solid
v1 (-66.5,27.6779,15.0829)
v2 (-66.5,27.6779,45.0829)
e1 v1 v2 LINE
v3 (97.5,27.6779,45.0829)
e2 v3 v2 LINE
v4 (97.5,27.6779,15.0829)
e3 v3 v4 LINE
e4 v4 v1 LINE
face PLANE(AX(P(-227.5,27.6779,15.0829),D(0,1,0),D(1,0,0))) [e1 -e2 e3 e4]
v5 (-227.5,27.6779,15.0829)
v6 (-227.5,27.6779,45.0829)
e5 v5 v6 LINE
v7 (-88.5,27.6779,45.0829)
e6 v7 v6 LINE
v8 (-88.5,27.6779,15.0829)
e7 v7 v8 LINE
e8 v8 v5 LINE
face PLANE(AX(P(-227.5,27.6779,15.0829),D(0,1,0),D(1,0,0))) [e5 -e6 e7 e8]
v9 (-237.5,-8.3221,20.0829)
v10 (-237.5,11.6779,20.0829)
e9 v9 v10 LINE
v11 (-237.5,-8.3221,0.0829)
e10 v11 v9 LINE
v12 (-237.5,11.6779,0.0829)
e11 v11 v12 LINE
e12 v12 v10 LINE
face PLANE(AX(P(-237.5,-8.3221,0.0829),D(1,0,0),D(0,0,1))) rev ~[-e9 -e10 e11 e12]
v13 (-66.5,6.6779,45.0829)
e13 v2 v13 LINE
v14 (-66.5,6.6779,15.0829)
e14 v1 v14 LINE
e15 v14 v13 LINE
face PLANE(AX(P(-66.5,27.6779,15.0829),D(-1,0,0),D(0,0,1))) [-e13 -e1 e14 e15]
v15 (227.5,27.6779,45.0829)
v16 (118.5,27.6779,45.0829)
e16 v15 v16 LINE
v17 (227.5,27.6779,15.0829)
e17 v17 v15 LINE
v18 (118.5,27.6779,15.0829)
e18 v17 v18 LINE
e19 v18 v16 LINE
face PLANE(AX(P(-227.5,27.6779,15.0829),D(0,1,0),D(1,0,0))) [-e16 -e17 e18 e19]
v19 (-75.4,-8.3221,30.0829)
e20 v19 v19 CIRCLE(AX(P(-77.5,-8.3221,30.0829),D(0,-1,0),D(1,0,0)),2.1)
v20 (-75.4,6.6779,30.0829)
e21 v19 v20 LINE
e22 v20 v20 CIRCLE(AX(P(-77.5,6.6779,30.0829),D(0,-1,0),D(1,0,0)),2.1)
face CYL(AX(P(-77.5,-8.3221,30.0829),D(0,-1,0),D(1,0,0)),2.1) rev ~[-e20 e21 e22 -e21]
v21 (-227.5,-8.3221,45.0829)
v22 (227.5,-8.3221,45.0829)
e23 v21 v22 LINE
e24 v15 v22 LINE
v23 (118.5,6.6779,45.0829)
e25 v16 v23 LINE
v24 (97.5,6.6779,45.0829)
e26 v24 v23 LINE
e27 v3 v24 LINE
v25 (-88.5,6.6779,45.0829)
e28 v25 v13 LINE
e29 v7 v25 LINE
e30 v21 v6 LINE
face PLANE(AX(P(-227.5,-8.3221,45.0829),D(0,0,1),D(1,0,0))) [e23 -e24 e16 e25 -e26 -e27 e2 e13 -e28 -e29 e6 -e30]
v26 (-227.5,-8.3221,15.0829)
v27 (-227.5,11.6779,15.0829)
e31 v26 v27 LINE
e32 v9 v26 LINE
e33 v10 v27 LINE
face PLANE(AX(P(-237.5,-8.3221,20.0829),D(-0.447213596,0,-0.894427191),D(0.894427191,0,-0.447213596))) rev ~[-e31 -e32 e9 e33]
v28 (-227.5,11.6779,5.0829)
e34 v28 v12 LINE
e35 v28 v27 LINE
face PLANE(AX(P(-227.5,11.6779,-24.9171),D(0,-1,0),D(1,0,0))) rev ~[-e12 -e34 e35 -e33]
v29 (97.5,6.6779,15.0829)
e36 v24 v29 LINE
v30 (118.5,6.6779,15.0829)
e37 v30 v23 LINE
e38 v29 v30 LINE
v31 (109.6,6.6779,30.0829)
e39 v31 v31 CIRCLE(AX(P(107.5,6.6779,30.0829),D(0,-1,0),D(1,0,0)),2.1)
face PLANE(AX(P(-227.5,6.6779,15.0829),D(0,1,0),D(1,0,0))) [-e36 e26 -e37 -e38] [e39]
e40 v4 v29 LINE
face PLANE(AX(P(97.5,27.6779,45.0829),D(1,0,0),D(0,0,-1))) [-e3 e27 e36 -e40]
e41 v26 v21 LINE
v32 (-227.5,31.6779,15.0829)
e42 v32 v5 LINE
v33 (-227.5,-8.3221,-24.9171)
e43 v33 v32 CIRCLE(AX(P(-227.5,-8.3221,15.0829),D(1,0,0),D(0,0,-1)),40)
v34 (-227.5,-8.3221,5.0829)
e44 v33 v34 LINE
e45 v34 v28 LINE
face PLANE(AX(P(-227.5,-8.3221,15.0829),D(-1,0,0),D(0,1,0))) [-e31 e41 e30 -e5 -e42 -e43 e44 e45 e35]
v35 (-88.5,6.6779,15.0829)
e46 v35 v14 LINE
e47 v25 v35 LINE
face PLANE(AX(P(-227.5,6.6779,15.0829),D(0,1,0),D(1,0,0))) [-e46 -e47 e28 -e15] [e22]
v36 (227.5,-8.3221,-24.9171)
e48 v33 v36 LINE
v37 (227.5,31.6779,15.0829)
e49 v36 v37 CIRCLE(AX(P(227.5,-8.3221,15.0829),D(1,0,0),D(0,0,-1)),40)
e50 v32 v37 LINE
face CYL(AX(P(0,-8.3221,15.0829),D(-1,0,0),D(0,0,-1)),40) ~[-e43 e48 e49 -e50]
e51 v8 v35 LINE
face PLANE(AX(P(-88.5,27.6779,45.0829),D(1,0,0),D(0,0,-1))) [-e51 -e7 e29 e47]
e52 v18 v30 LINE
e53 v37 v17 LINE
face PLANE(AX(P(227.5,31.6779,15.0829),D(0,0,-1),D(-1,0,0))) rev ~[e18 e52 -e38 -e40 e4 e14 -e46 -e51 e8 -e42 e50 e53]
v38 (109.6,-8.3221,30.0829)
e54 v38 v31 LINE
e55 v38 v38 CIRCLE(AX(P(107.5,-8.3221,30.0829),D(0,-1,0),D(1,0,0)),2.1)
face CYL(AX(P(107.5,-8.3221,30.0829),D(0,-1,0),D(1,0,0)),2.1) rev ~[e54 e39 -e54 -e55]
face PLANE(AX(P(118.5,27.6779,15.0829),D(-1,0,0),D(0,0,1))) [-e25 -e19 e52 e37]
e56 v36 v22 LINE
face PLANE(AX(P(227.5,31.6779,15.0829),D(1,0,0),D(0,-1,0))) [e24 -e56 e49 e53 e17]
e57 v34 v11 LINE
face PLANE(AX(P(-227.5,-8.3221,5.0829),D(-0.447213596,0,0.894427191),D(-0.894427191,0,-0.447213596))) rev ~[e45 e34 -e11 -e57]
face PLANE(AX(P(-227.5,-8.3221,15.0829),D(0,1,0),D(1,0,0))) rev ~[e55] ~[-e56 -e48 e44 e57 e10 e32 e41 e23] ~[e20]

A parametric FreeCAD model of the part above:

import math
import FreeCAD as App
import Part
import Sketcher

V = App.Vector


def add_polygon(sketch, points):
    """Adds a closed chain of lines whose ends are joined by coincident constraints."""
    first, n = sketch.GeometryCount, len(points)
    for a, b in zip(points, points[1:] + points[:1]):
        sketch.addGeometry(Part.LineSegment(App.Vector(*a, 0), App.Vector(*b, 0)), False)
    for i in range(n):
        sketch.addConstraint(Sketcher.Constraint("Coincident", first + i, 2, first + (i + 1) % n, 1))

doc = App.newDocument("Part")
body = doc.addObject("PartDesign::Body", "Body")

# Sketch on YZ plane
sketch1 = doc.addObject("Sketcher::SketchObject", "Sketch")
body.addObject(sketch1)
sketch1.AttachmentSupport = (doc.YZ_Plane, [""])
sketch1.MapMode = "FlatFace"
sketch1.addGeometry(Part.LineSegment(V(-8.3221, 15.0829, 0), V(-8.3221, -24.9171, 0)), False)
sketch1.addGeometry(Part.ArcOfCircle(Part.Circle(V(-8.3221, 15.0829, 0), V(0, 0, 1), 40), math.radians(-90), math.radians(0)), False)
sketch1.addGeometry(Part.LineSegment(V(31.6779, 15.0829, 0), V(-8.3221, 15.0829, 0)), False)
sketch1.addConstraint(Sketcher.Constraint("Coincident", 0, 2, 1, 1))
sketch1.addConstraint(Sketcher.Constraint("Coincident", 1, 2, 2, 1))
sketch1.addConstraint(Sketcher.Constraint("Coincident", 2, 2, 0, 1))
sketch1.addConstraint(Sketcher.Constraint("Vertical", 0))
sketch1.addConstraint(Sketcher.Constraint("Horizontal", 2))
sketch1.addConstraint(Sketcher.Constraint("Coincident", 2, 2, 1, 3))
sketch1.addConstraint(Sketcher.Constraint("Radius", 1, 40.0))
sketch1.addConstraint(Sketcher.Constraint("DistanceX", 1, 3, -1, 1, 8.322))
sketch1.addConstraint(Sketcher.Constraint("DistanceY", -1, 1, 1, 3, 15.083))
pad1 = doc.addObject("PartDesign::Pad", "Pad")
body.addObject(pad1)
pad1.Profile = sketch1
pad1.Length = 455
pad1.Midplane = True

# Sketch on XY plane
sketch2 = doc.addObject("Sketcher::SketchObject", "Sketch001")
body.addObject(sketch2)
sketch2.AttachmentSupport = (doc.XY_Plane, [""])
sketch2.MapMode = "FlatFace"
sketch2.AttachmentOffset = App.Placement(V(0, 0, 15.0829), App.Rotation())
add_polygon(sketch2, [(-227.5, 31.6779), (-227.5, -8.3221), (227.5, -8.3221), (227.5, 31.6779)])  # lines 0-3
sketch2.addConstraint(Sketcher.Constraint("Vertical", 0))
sketch2.addConstraint(Sketcher.Constraint("Horizontal", 1))
sketch2.addConstraint(Sketcher.Constraint("Vertical", 2))
sketch2.addConstraint(Sketcher.Constraint("Horizontal", 3))
sketch2.addConstraint(Sketcher.Constraint("DistanceX", 1, 1, 1, 2, 455.0))
sketch2.addConstraint(Sketcher.Constraint("DistanceY", 0, 2, 0, 1, 40.0))
sketch2.addConstraint(Sketcher.Constraint("DistanceX", 0, 2, -1, 1, 227.5))
sketch2.addConstraint(Sketcher.Constraint("DistanceY", 0, 2, -1, 1, 8.322))
pad2 = doc.addObject("PartDesign::Pad", "Pad001")
body.addObject(pad2)
pad2.Profile = sketch2
pad2.Length = 30

# Sketch on XZ plane
sketch3 = doc.addObject("Sketcher::SketchObject", "Sketch002")
body.addObject(sketch3)
sketch3.AttachmentSupport = (doc.XZ_Plane, [""])
sketch3.MapMode = "FlatFace"
sketch3.AttachmentOffset = App.Placement(V(0, 0, -31.6779), App.Rotation())
add_polygon(sketch3, [(227.5, 45.0829), (227.5, 15.0829), (-227.5, 15.0829), (-227.5, 45.0829)])  # lines 0-3
sketch3.addConstraint(Sketcher.Constraint("Vertical", 0))
sketch3.addConstraint(Sketcher.Constraint("Horizontal", 1))
sketch3.addConstraint(Sketcher.Constraint("Vertical", 2))
sketch3.addConstraint(Sketcher.Constraint("Horizontal", 3))
sketch3.addConstraint(Sketcher.Constraint("DistanceX", 1, 2, 1, 1, 455.0))
sketch3.addConstraint(Sketcher.Constraint("DistanceY", 0, 2, 0, 1, 30.0))
sketch3.addConstraint(Sketcher.Constraint("DistanceX", -1, 1, 0, 2, 227.5))
sketch3.addConstraint(Sketcher.Constraint("DistanceY", -1, 1, 0, 2, 15.083))
pocket1 = doc.addObject("PartDesign::Pocket", "Pocket")
body.addObject(pocket1)
pocket1.Profile = sketch3
pocket1.Length = 4
pocket1.Reversed = True

# Sketch on XZ plane
sketch4 = doc.addObject("Sketcher::SketchObject", "Sketch003")
body.addObject(sketch4)
sketch4.AttachmentSupport = (doc.XZ_Plane, [""])
sketch4.MapMode = "FlatFace"
sketch4.AttachmentOffset = App.Placement(V(0, 0, 8.3221), App.Rotation())
add_polygon(sketch4, [(-227.5, 15.0829), (-237.5, 20.0829), (-237.5, 0.0829), (-227.5, 5.0829)])  # lines 0-3
sketch4.addConstraint(Sketcher.Constraint("Vertical", 1))
sketch4.addConstraint(Sketcher.Constraint("Vertical", 3))
sketch4.addConstraint(Sketcher.Constraint("Equal", 0, 2))
sketch4.addConstraint(Sketcher.Constraint("DistanceY", 1, 2, 1, 1, 20.0))
sketch4.addConstraint(Sketcher.Constraint("DistanceY", 3, 1, 3, 2, 10.0))
sketch4.addConstraint(Sketcher.Constraint("DistanceX", 1, 2, 2, 2, 10.0))
sketch4.addConstraint(Sketcher.Constraint("DistanceX", 0, 2, -1, 1, 237.5))
sketch4.addConstraint(Sketcher.Constraint("DistanceY", -1, 1, 0, 2, 20.083))
pad3 = doc.addObject("PartDesign::Pad", "Pad002")
body.addObject(pad3)
pad3.Profile = sketch4
pad3.Length = 20
pad3.Reversed = True

# Sketch on XZ plane
sketch5 = doc.addObject("Sketcher::SketchObject", "Sketch004")
body.addObject(sketch5)
sketch5.AttachmentSupport = (doc.XZ_Plane, [""])
sketch5.MapMode = "FlatFace"
sketch5.AttachmentOffset = App.Placement(V(0, 0, -27.6779), App.Rotation())
add_polygon(sketch5, [(-88.5, 15.0829), (-88.5, 45.0829), (-66.5, 45.0829), (-66.5, 15.0829)])  # lines 0-3
add_polygon(sketch5, [(97.5, 15.0829), (97.5, 45.0829), (118.5, 45.0829), (118.5, 15.0829)])  # lines 4-7
sketch5.addConstraint(Sketcher.Constraint("Vertical", 0))
sketch5.addConstraint(Sketcher.Constraint("Horizontal", 1))
sketch5.addConstraint(Sketcher.Constraint("Vertical", 2))
sketch5.addConstraint(Sketcher.Constraint("Horizontal", 3))
sketch5.addConstraint(Sketcher.Constraint("Vertical", 4))
sketch5.addConstraint(Sketcher.Constraint("Horizontal", 5))
sketch5.addConstraint(Sketcher.Constraint("Vertical", 6))
sketch5.addConstraint(Sketcher.Constraint("Horizontal", 7))
sketch5.addConstraint(Sketcher.Constraint("Horizontal", 1, 2, 4, 2))
sketch5.addConstraint(Sketcher.Constraint("Horizontal", 3, 2, 6, 2))
sketch5.addConstraint(Sketcher.Constraint("DistanceX", 1, 1, 1, 2, 22.0))
sketch5.addConstraint(Sketcher.Constraint("DistanceX", 1, 2, 5, 2, 185.0))
sketch5.addConstraint(Sketcher.Constraint("DistanceX", 5, 1, 5, 2, 21.0))
sketch5.addConstraint(Sketcher.Constraint("DistanceY", 0, 1, 0, 2, 30.0))
sketch5.addConstraint(Sketcher.Constraint("DistanceX", 0, 2, -1, 1, 88.5))
sketch5.addConstraint(Sketcher.Constraint("DistanceY", -1, 1, 0, 2, 45.083))
pocket2 = doc.addObject("PartDesign::Pocket", "Pocket001")
body.addObject(pocket2)
pocket2.Profile = sketch5
pocket2.Length = 21
pocket2.Reversed = True

# Sketch on XZ plane
sketch6 = doc.addObject("Sketcher::SketchObject", "Sketch005")
body.addObject(sketch6)
sketch6.AttachmentSupport = (doc.XZ_Plane, [""])
sketch6.MapMode = "FlatFace"
sketch6.AttachmentOffset = App.Placement(V(0, 0, 8.3221), App.Rotation())
sketch6.addGeometry(Part.Circle(V(-77.5, 30.0829, 0), V(0, 0, 1), 2.1), False)
sketch6.addGeometry(Part.Circle(V(107.5, 30.0829, 0), V(0, 0, 1), 2.1), False)
sketch6.addConstraint(Sketcher.Constraint("Equal", 0, 1))
sketch6.addConstraint(Sketcher.Constraint("Horizontal", 0, 3, 1, 3))
sketch6.addConstraint(Sketcher.Constraint("Diameter", 0, 4.2))
sketch6.addConstraint(Sketcher.Constraint("DistanceX", 0, 3, 1, 3, 185.0))
sketch6.addConstraint(Sketcher.Constraint("DistanceX", 0, 3, -1, 1, 77.5))
sketch6.addConstraint(Sketcher.Constraint("DistanceY", -1, 1, 0, 3, 30.083))
pocket3 = doc.addObject("PartDesign::Pocket", "Pocket002")
body.addObject(pocket3)
pocket3.Profile = sketch6
pocket3.Type = "UpToFirst"

doc.recompute()
